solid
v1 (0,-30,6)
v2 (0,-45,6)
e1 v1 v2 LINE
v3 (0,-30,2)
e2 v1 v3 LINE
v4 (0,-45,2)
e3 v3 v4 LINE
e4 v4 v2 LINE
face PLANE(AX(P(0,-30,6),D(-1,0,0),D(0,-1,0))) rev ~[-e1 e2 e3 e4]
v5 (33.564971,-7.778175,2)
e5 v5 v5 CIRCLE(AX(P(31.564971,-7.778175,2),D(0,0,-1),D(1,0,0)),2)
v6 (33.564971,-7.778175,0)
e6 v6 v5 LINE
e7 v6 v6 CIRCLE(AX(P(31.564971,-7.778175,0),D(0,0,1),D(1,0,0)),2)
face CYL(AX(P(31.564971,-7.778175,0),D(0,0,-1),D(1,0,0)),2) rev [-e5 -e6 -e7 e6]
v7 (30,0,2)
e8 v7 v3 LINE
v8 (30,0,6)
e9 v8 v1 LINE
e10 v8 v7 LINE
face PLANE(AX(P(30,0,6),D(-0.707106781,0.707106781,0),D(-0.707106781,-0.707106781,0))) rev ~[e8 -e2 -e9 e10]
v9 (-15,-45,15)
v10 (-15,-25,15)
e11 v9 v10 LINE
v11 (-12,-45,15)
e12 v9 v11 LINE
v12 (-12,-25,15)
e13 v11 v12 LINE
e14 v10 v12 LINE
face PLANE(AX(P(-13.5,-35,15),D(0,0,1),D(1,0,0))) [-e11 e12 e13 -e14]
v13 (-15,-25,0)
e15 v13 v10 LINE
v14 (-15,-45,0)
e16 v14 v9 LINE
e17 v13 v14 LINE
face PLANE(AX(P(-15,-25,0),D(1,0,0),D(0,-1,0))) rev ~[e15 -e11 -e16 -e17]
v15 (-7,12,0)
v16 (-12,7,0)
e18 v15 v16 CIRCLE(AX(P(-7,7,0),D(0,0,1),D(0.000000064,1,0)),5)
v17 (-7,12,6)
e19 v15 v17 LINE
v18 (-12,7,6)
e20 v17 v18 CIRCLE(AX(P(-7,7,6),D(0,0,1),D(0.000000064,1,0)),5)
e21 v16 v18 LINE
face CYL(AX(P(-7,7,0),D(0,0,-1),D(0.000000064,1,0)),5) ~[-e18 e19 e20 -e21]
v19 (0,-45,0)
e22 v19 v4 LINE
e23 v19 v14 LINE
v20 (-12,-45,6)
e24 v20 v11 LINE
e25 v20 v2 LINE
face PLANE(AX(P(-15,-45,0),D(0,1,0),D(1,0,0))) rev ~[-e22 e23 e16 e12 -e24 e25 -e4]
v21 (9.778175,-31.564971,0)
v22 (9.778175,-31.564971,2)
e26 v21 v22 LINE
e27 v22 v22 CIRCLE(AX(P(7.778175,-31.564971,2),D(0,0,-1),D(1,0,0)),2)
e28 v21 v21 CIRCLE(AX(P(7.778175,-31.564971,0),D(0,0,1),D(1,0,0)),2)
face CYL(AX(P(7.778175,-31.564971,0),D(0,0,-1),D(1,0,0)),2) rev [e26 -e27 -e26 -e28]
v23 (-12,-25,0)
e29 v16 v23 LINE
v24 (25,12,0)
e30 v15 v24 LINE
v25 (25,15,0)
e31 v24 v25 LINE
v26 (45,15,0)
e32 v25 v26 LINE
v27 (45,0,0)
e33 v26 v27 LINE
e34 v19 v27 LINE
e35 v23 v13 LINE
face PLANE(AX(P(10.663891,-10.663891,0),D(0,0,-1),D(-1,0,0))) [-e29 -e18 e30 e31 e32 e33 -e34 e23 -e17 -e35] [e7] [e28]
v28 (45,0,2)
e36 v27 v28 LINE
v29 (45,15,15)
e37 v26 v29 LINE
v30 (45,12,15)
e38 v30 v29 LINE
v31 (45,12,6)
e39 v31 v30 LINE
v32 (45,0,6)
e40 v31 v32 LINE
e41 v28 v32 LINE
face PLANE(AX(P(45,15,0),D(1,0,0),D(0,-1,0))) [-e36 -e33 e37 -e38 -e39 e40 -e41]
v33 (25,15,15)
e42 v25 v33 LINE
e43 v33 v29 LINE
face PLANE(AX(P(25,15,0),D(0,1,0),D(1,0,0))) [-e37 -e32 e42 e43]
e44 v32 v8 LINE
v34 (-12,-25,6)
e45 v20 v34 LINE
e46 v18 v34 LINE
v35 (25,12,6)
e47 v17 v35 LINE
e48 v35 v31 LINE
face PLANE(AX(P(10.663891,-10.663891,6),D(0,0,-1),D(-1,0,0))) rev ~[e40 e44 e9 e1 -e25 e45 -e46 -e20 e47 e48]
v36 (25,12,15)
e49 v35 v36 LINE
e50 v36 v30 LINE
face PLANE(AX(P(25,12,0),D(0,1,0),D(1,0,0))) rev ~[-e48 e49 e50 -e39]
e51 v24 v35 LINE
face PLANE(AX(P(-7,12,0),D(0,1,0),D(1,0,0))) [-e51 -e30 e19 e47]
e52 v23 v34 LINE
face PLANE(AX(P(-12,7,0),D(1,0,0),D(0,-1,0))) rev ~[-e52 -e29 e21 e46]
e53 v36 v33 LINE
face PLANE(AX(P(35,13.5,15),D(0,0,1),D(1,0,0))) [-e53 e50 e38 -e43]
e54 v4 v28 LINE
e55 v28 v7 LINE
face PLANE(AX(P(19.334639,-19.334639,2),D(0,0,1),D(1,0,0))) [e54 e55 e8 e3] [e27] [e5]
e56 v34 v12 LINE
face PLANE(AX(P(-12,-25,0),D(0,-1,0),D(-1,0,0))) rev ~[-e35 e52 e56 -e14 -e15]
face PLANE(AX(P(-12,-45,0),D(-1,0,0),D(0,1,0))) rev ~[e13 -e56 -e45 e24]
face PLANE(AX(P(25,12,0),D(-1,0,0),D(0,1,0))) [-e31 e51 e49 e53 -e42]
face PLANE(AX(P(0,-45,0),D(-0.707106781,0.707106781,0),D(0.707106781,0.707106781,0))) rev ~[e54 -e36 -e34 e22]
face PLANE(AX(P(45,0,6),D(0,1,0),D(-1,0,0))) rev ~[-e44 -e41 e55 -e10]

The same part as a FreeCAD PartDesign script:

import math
import FreeCAD as App
import Part
import Sketcher
Q = App.Units.Quantity


def add_polygon(sketch, points):
    """Adds a closed chain of lines whose ends are joined by coincident constraints."""
    first, n = sketch.GeometryCount, len(points)
    for a, b in zip(points, points[1:] + points[:1]):
        sketch.addGeometry(Part.LineSegment(App.Vector(*a, 0), App.Vector(*b, 0)), False)
    for i in range(n):
        sketch.addConstraint(Sketcher.Constraint("Coincident", first + i, 2, first + (i + 1) % n, 1))

doc = App.newDocument("Part")
params = doc.addObject("Spreadsheet::Sheet", "Params")
for row, (alias, value) in enumerate([
    ("sketch1_diameter", "4 mm"),
    ("sketch1_radius", "5 mm"),
    ("sketch1_width", "32 mm"),
    ("sketch1_width2", "3 mm"),
    ("sketch1_width3", "15 mm"),
    ("pad1_length", "6 mm"),
    ("sketch2_width", "3 mm"),
    ("sketch2_width2", "20 mm"),
    ("pad2_length", "15 mm"),
    ("sketch3_width", "15 mm"),
    ("pocket1_length", "4 mm"),
], start=1):
    params.set(f"A{row}", alias)
    params.set(f"B{row}", "=" + value)
    params.setAlias(f"B{row}", alias)

body = doc.addObject("PartDesign::Body", "Body")

# Sketch on XY plane
sketch1 = doc.addObject("Sketcher::SketchObject", "Sketch")
body.addObject(sketch1)
sketch1.AttachmentSupport = (doc.XY_Plane, [""])
sketch1.MapMode = "FlatFace"
sketch1.addGeometry(Part.LineSegment(App.Vector(25, 12, 0), App.Vector(-7, 12, 0)), False)
sketch1.addGeometry(Part.ArcOfCircle(Part.Circle(App.Vector(-7, 7, 0), App.Vector(0, 0, 1), 5), math.radians(90), math.radians(180)), False)
sketch1.addGeometry(Part.LineSegment(App.Vector(-12, 7, 0), App.Vector(-12, -25, 0)), False)
sketch1.addGeometry(Part.LineSegment(App.Vector(-12, -25, 0), App.Vector(-15, -25, 0)), False)
sketch1.addGeometry(Part.LineSegment(App.Vector(-15, -25, 0), App.Vector(-15, -45, 0)), False)
sketch1.addGeometry(Part.LineSegment(App.Vector(-15, -45, 0), App.Vector(0, -45, 0)), False)
sketch1.addGeometry(Part.LineSegment(App.Vector(0, -45, 0), App.Vector(45, 0, 0)), False)
sketch1.addGeometry(Part.LineSegment(App.Vector(45, 0, 0), App.Vector(45, 15, 0)), False)
sketch1.addGeometry(Part.LineSegment(App.Vector(45, 15, 0), App.Vector(25, 15, 0)), False)
sketch1.addGeometry(Part.LineSegment(App.Vector(25, 15, 0), App.Vector(25, 12, 0)), False)
sketch1.addGeometry(Part.Circle(App.Vector(7.8, -31.6, 0), App.Vector(0, 0, 1), 2), False)
sketch1.addGeometry(Part.Circle(App.Vector(31.6, -7.8, 0), App.Vector(0, 0, 1), 2), False)
sketch1.addConstraint(Sketcher.Constraint("Tangent", 0, 2, 1, 1))
sketch1.addConstraint(Sketcher.Constraint("Tangent", 1, 2, 2, 1))
sketch1.addConstraint(Sketcher.Constraint("Coincident", 2, 2, 3, 1))
sketch1.addConstraint(Sketcher.Constraint("Coincident", 3, 2, 4, 1))
sketch1.addConstraint(Sketcher.Constraint("Coincident", 4, 2, 5, 1))
sketch1.addConstraint(Sketcher.Constraint("Coincident", 5, 2, 6, 1))
sketch1.addConstraint(Sketcher.Constraint("Coincident", 6, 2, 7, 1))
sketch1.addConstraint(Sketcher.Constraint("Coincident", 7, 2, 8, 1))
sketch1.addConstraint(Sketcher.Constraint("Coincident", 8, 2, 9, 1))
sketch1.addConstraint(Sketcher.Constraint("Coincident", 9, 2, 0, 1))
sketch1.addConstraint(Sketcher.Constraint("Horizontal", 0))
sketch1.addConstraint(Sketcher.Constraint("Vertical", 2))
sketch1.addConstraint(Sketcher.Constraint("Horizontal", 3))
sketch1.addConstraint(Sketcher.Constraint("Vertical", 4))
sketch1.addConstraint(Sketcher.Constraint("Horizontal", 5))
sketch1.addConstraint(Sketcher.Constraint("Vertical", 7))
sketch1.addConstraint(Sketcher.Constraint("Horizontal", 8))
sketch1.addConstraint(Sketcher.Constraint("Vertical", 9))
sketch1.addConstraint(Sketcher.Constraint("Equal", 10, 11))
sketch1.addConstraint(Sketcher.Constraint("PointOnObject", 5, 2, -2))
sketch1.addConstraint(Sketcher.Constraint("PointOnObject", 6, 2, -1))
sketch1.addConstraint(Sketcher.Constraint("Equal", 0, 2))
sketch1.addConstraint(Sketcher.Constraint("Equal", 8, 4))
sketch1.addConstraint(Sketcher.Constraint("Equal", 5, 7))
sketch1.addConstraint(Sketcher.Constraint("Equal", 3, 9))
sketch1.addConstraint(Sketcher.Constraint("Diameter", 10, Q("4 mm")))
sketch1.addConstraint(Sketcher.Constraint("Radius", 1, Q("5 mm")))
sketch1.addConstraint(Sketcher.Constraint("DistanceX", 0, 2, 0, 1, Q("32 mm")))
sketch1.addConstraint(Sketcher.Constraint("DistanceX", 3, 2, 3, 1, Q("3 mm")))
sketch1.addConstraint(Sketcher.Constraint("DistanceX", 5, 1, 5, 2, Q("15 mm")))
sketch1.addConstraint(Sketcher.Constraint("DistanceX", 8, 2, 8, 1, Q("20 mm")))
sketch1.addConstraint(Sketcher.Constraint("DistanceY", 10, 3, -1, 1, Q("31.564971 mm")))
sketch1.addConstraint(Sketcher.Constraint("DistanceX", -1, 1, 11, 3, Q("31.564971 mm")))
sketch1.addConstraint(Sketcher.Constraint("DistanceX", -1, 1, 10, 3, Q("7.778175 mm")))
sketch1.addConstraint(Sketcher.Constraint("DistanceY", 11, 3, -1, 1, Q("7.778175 mm")))
sketch1.setExpression("Constraints[25]", "Params.sketch1_diameter")
sketch1.setExpression("Constraints[26]", "Params.sketch1_radius")
sketch1.setExpression("Constraints[27]", "Params.sketch1_width")
sketch1.setExpression("Constraints[28]", "Params.sketch1_width2")
sketch1.setExpression("Constraints[29]", "Params.sketch1_width3")
pad1 = doc.addObject("PartDesign::Pad", "Pad")
body.addObject(pad1)
pad1.Profile = sketch1
pad1.setExpression("Length", "Params.pad1_length")

# Sketch on XY plane
sketch2 = doc.addObject("Sketcher::SketchObject", "Sketch001")
body.addObject(sketch2)
sketch2.AttachmentSupport = (doc.XY_Plane, [""])
sketch2.MapMode = "FlatFace"
add_polygon(sketch2, [(-15, -25), (-15, -45), (-12, -45), (-12, -25)])  # lines 0-3
add_polygon(sketch2, [(25, 15), (25, 12), (45, 12), (45, 15)])  # lines 4-7
sketch2.addConstraint(Sketcher.Constraint("Vertical", 0))
sketch2.addConstraint(Sketcher.Constraint("Horizontal", 1))
sketch2.addConstraint(Sketcher.Constraint("Vertical", 2))
sketch2.addConstraint(Sketcher.Constraint("Horizontal", 3))
sketch2.addConstraint(Sketcher.Constraint("Vertical", 4))
sketch2.addConstraint(Sketcher.Constraint("Horizontal", 5))
sketch2.addConstraint(Sketcher.Constraint("Vertical", 6))
sketch2.addConstraint(Sketcher.Constraint("Horizontal", 7))
sketch2.addConstraint(Sketcher.Constraint("Equal", 7, 0))
sketch2.addConstraint(Sketcher.Constraint("Equal", 3, 4))
sketch2.addConstraint(Sketcher.Constraint("DistanceX", 1, 1, 1, 2, Q("3 mm")))
sketch2.addConstraint(Sketcher.Constraint("DistanceX", 5, 1, 5, 2, Q("20 mm")))
sketch2.addConstraint(Sketcher.Constraint("DistanceX", 0, 2, -1, 1, Q("15 mm")))
sketch2.addConstraint(Sketcher.Constraint("DistanceY", 0, 2, -1, 1, Q("45 mm")))
sketch2.addConstraint(Sketcher.Constraint("DistanceX", -1, 1, 4, 2, Q("25 mm")))
sketch2.addConstraint(Sketcher.Constraint("DistanceY", -1, 1, 4, 2, Q("12 mm")))
sketch2.setExpression("Constraints[18]", "Params.sketch2_width")
sketch2.setExpression("Constraints[19]", "Params.sketch2_width2")
pad2 = doc.addObject("PartDesign::Pad", "Pad001")
body.addObject(pad2)
pad2.Profile = sketch2
pad2.setExpression("Length", "Params.pad2_length")

# Sketch on XY plane
sketch3 = doc.addObject("Sketcher::SketchObject", "Sketch002")
body.addObject(sketch3)
sketch3.AttachmentSupport = (doc.XY_Plane, [""])
sketch3.MapMode = "FlatFace"
sketch3.AttachmentOffset = App.Placement(App.Vector(0, 0, 6), App.Rotation())
add_polygon(sketch3, [(45, 0), (30, 0), (0, -30), (0, -45)])  # lines 0-3
sketch3.addConstraint(Sketcher.Constraint("Horizontal", 0))
sketch3.addConstraint(Sketcher.Constraint("Vertical", 2))
sketch3.addConstraint(Sketcher.Constraint("PointOnObject", 0, 2, -1))
sketch3.addConstraint(Sketcher.Constraint("PointOnObject", 1, 2, -2))
sketch3.addConstraint(Sketcher.Constraint("Parallel", 1, 3))
sketch3.addConstraint(Sketcher.Constraint("Equal", 0, 2))
sketch3.addConstraint(Sketcher.Constraint("DistanceX", 0, 2, 0, 1, Q("15 mm")))
sketch3.addConstraint(Sketcher.Constraint("DistanceX", -1, 1, 0, 2, Q("30 mm")))
sketch3.setExpression("Constraints[10]", "Params.sketch3_width")
pocket1 = doc.addObject("PartDesign::Pocket", "Pocket")
body.addObject(pocket1)
pocket1.Profile = sketch3
pocket1.setExpression("Length", "Params.pocket1_length")

doc.recompute()
